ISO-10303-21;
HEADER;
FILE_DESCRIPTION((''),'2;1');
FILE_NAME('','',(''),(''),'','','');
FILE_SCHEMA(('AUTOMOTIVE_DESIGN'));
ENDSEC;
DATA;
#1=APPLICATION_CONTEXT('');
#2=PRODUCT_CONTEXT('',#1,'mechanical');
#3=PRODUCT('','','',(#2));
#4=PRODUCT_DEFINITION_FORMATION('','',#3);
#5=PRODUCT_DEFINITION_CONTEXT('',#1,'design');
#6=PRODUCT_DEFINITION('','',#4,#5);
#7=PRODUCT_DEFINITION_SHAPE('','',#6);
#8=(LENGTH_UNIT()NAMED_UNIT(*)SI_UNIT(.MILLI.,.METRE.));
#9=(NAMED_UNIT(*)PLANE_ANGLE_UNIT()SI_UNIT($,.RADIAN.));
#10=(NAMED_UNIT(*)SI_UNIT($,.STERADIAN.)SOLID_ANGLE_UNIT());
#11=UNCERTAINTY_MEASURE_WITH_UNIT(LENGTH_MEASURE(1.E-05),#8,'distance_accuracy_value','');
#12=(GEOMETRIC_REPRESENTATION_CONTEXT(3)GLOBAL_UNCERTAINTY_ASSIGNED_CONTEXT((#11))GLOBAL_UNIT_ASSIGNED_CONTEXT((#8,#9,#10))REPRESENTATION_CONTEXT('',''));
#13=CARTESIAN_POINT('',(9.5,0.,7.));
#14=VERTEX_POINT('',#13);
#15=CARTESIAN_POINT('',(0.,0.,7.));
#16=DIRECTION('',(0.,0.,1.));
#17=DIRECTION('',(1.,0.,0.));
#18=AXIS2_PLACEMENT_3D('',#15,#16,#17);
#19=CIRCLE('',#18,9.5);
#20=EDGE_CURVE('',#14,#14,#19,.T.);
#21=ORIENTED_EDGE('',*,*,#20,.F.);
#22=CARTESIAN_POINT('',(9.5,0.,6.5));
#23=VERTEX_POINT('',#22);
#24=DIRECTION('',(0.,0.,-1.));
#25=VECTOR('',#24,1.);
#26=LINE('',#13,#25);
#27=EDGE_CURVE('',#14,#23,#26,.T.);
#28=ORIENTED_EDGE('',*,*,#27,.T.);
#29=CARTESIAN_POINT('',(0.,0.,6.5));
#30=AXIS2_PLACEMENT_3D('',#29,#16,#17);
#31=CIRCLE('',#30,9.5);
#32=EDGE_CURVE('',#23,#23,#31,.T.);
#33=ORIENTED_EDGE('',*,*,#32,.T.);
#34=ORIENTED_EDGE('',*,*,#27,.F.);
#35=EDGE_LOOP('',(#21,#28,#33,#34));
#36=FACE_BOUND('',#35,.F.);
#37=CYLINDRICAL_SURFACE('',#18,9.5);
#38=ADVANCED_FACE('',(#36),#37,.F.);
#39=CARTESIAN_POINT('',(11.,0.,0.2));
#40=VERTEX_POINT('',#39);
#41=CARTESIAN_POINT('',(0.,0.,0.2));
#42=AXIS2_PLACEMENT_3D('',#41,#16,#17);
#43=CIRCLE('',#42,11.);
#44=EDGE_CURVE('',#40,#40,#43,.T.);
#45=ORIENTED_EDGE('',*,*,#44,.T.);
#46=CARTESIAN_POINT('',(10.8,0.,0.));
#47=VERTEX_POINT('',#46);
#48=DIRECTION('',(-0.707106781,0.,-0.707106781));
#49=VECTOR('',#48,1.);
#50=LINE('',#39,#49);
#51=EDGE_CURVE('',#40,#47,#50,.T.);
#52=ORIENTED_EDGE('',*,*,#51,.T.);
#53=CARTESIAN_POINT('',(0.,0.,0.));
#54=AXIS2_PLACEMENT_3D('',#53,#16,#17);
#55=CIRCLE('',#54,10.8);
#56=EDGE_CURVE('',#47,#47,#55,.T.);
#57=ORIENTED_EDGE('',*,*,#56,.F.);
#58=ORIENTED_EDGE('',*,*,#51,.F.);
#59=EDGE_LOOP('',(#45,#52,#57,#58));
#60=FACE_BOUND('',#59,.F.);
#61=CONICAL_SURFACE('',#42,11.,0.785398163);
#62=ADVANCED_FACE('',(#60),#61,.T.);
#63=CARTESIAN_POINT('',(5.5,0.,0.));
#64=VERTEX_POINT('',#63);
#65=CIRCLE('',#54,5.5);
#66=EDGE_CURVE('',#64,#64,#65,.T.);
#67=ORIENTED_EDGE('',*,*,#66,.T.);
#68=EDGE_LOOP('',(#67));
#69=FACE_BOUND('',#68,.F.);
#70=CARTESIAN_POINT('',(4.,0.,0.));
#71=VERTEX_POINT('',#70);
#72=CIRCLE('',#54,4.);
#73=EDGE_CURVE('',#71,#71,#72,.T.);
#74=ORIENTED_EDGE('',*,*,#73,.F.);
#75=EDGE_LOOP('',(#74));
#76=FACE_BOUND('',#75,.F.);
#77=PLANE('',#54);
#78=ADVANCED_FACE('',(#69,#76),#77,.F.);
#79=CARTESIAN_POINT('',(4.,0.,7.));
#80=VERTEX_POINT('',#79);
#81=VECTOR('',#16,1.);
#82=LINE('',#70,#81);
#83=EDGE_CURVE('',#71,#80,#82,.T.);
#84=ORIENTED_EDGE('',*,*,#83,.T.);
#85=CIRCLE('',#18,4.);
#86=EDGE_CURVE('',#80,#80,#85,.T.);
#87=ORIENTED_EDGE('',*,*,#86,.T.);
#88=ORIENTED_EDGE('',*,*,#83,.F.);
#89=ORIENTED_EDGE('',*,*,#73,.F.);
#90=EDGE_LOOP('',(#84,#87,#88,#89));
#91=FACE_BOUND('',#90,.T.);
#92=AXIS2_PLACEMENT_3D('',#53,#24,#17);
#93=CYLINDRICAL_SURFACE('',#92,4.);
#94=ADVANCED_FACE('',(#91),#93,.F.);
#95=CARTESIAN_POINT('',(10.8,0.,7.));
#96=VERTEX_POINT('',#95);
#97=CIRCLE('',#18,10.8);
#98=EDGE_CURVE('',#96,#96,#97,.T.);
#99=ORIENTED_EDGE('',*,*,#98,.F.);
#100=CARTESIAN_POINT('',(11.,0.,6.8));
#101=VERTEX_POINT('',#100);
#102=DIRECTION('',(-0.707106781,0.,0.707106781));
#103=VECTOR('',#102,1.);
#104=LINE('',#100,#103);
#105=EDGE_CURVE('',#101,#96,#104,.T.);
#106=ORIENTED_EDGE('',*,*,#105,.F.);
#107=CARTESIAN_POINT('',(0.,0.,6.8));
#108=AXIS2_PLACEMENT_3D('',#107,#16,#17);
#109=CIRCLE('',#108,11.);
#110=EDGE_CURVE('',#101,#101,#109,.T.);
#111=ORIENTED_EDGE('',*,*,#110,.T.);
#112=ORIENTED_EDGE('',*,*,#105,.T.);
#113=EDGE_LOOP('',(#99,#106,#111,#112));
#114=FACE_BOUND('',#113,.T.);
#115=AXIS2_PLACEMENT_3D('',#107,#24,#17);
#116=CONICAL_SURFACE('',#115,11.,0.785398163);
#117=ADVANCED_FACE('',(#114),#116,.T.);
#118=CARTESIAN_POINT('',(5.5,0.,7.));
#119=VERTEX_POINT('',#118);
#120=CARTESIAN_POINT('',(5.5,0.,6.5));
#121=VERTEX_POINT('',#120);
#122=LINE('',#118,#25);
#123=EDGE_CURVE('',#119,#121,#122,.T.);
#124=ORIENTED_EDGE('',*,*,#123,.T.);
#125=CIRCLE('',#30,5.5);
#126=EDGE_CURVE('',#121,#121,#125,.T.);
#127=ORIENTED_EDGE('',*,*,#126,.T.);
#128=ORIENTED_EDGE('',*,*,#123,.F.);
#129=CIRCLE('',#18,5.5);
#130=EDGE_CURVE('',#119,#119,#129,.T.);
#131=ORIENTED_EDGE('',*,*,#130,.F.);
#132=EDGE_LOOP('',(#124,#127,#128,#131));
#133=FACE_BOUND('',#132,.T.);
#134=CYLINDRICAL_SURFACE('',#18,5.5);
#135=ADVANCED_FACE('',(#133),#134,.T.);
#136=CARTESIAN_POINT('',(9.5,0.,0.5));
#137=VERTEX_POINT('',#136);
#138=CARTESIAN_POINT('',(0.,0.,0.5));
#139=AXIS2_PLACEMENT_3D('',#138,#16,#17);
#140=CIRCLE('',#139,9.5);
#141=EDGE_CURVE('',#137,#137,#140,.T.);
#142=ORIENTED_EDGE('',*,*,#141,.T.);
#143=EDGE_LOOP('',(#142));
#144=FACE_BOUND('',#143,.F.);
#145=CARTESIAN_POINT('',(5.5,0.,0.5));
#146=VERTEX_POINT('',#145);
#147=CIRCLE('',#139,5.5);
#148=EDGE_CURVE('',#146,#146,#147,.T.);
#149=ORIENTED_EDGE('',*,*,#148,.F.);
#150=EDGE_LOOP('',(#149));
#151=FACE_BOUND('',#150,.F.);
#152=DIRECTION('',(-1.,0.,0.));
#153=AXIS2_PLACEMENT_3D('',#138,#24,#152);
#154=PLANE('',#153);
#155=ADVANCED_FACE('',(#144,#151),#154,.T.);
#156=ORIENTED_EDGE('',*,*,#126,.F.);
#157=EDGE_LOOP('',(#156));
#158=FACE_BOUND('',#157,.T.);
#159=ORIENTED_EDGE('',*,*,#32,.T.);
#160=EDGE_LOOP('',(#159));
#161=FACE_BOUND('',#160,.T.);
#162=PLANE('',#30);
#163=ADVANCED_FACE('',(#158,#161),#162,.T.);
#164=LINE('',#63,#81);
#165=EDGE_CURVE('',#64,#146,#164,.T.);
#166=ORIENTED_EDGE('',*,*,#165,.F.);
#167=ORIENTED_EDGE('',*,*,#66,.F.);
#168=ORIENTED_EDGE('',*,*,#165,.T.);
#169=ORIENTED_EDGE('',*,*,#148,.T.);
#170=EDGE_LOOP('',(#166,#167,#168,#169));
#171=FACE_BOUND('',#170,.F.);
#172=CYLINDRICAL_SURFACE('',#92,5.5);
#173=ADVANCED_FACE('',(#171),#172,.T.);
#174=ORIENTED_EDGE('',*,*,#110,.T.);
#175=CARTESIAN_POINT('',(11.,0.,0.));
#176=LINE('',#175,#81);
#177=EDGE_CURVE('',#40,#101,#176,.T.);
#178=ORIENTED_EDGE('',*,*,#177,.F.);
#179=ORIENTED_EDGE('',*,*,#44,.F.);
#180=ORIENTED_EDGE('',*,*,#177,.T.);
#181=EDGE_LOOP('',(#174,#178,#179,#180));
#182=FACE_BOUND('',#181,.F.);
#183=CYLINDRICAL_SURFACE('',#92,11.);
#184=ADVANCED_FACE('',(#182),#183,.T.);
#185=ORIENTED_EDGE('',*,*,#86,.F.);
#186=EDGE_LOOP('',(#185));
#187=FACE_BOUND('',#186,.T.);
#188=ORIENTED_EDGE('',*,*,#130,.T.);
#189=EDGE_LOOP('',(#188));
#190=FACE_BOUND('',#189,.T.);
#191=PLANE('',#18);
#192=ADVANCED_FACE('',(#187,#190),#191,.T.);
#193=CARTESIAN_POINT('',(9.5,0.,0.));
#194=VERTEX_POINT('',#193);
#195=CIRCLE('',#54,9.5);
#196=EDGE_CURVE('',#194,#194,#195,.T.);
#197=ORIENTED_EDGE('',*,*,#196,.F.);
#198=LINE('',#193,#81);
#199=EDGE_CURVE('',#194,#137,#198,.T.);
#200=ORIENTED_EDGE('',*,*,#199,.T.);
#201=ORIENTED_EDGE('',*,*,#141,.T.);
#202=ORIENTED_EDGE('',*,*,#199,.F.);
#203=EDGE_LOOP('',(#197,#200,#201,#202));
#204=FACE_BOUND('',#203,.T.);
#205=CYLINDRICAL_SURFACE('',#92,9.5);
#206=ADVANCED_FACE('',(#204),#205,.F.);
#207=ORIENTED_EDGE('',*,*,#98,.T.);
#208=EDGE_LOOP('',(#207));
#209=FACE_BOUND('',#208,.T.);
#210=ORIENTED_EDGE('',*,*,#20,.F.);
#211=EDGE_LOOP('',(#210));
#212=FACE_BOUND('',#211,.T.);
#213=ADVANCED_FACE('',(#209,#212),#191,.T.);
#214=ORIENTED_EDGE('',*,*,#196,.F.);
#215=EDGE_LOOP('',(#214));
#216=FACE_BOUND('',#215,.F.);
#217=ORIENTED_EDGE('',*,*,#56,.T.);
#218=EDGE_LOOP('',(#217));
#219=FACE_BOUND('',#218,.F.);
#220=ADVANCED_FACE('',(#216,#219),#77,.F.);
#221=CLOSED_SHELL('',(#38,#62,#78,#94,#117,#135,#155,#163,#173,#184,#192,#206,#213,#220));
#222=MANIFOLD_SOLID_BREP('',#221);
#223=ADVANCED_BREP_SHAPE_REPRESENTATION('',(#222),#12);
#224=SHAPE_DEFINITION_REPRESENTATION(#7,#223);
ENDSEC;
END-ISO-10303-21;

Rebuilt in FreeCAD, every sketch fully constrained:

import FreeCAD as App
import Part
import Sketcher
from FreeCAD import Vector
Q = App.Units.Quantity


def edges_at(feature, points):
    """Names of the edges that pass closest to the given points."""
    edges = feature.Shape.Edges
    near = lambda p: min(range(len(edges)), key=lambda i: edges[i].distToShape(Part.Vertex(*p))[0])
    return sorted({f"Edge{near(p) + 1}" for p in points})

doc = App.newDocument("Part")
params = doc.addObject("Spreadsheet::Sheet", "Params")
for row, (alias, value) in enumerate([
    ("sketch1_diameter", "22 mm"),
    ("sketch1_diameter2", "8 mm"),
    ("pad1_length", "7 mm"),
    ("sketch2_diameter", "19 mm"),
    ("sketch2_diameter2", "11 mm"),
    ("pocket1_length", "0.5 mm"),
    ("chamfer_size", "0.2 mm"),
], start=1):
    params.set(f"A{row}", alias)
    params.set(f"B{row}", "=" + value)
    params.setAlias(f"B{row}", alias)

body = doc.addObject("PartDesign::Body", "Body")

# Sketch on XY plane
sketch1 = body.newObject("Sketcher::SketchObject", "Sketch")
sketch1.AttachmentSupport = (doc.getObject("XY_Plane"), [""])
sketch1.MapMode = "FlatFace"
sketch1.addGeometry([
    Part.Circle(Vector(0, 0, 0), Vector(0, 0, 1), 11),
    Part.Circle(Vector(0, 0, 0), Vector(0, 0, 1), 4),
], False)
sketch1.addConstraint([
    Sketcher.Constraint("Coincident", 0, 3, -1, 1),
    Sketcher.Constraint("Coincident", 1, 3, -1, 1),
    Sketcher.Constraint("Diameter", 0, Q("22 mm")),
    Sketcher.Constraint("Diameter", 1, Q("8 mm")),
])
sketch1.setExpression("Constraints[2]", "Params.sketch1_diameter")
sketch1.setExpression("Constraints[3]", "Params.sketch1_diameter2")
pad1 = body.newObject("PartDesign::Pad", "Pad")
pad1.Profile = sketch1
pad1.setExpression("Length", "Params.pad1_length")

# Sketch on XY plane
sketch2 = body.newObject("Sketcher::SketchObject", "Sketch001")
sketch2.AttachmentSupport = (doc.getObject("XY_Plane"), [""])
sketch2.MapMode = "FlatFace"
sketch2.AttachmentOffset = App.Placement(Vector(0, 0, 7), App.Rotation())
sketch2.addGeometry([
    Part.Circle(Vector(0, 0, 0), Vector(0, 0, 1), 9.5),
    Part.Circle(Vector(0, 0, 0), Vector(0, 0, 1), 5.5),
], False)
sketch2.addConstraint([
    Sketcher.Constraint("Coincident", 0, 3, -1, 1),
    Sketcher.Constraint("Coincident", 1, 3, -1, 1),
    Sketcher.Constraint("Diameter", 0, Q("19 mm")),
    Sketcher.Constraint("Diameter", 1, Q("11 mm")),
])
sketch2.setExpression("Constraints[2]", "Params.sketch2_diameter")
sketch2.setExpression("Constraints[3]", "Params.sketch2_diameter2")
pocket1 = body.newObject("PartDesign::Pocket", "Pocket")
pocket1.Profile = sketch2
pocket1.setExpression("Length", "Params.pocket1_length")
doc.recompute()

datumplane = body.newObject("PartDesign::Plane", "DatumPlane")
datumplane.AttachmentSupport = (doc.getObject("XY_Plane"), [""])
datumplane.MapMode = "FlatFace"
datumplane.AttachmentOffset = App.Placement(Vector(0, 0, 3.5), App.Rotation())
mirrored = body.newObject("PartDesign::Mirrored", "Mirrored")
mirrored.Originals = [pocket1]
mirrored.MirrorPlane = (datumplane, [""])
body.Tip = mirrored
doc.recompute()

chamfer = body.newObject("PartDesign::Chamfer", "Chamfer")
chamfer.Base = (mirrored, edges_at(mirrored, [(-11, 0, 7), (-11, 0, 0)]))
chamfer.setExpression("Size", "Params.chamfer_size")

doc.recompute()
